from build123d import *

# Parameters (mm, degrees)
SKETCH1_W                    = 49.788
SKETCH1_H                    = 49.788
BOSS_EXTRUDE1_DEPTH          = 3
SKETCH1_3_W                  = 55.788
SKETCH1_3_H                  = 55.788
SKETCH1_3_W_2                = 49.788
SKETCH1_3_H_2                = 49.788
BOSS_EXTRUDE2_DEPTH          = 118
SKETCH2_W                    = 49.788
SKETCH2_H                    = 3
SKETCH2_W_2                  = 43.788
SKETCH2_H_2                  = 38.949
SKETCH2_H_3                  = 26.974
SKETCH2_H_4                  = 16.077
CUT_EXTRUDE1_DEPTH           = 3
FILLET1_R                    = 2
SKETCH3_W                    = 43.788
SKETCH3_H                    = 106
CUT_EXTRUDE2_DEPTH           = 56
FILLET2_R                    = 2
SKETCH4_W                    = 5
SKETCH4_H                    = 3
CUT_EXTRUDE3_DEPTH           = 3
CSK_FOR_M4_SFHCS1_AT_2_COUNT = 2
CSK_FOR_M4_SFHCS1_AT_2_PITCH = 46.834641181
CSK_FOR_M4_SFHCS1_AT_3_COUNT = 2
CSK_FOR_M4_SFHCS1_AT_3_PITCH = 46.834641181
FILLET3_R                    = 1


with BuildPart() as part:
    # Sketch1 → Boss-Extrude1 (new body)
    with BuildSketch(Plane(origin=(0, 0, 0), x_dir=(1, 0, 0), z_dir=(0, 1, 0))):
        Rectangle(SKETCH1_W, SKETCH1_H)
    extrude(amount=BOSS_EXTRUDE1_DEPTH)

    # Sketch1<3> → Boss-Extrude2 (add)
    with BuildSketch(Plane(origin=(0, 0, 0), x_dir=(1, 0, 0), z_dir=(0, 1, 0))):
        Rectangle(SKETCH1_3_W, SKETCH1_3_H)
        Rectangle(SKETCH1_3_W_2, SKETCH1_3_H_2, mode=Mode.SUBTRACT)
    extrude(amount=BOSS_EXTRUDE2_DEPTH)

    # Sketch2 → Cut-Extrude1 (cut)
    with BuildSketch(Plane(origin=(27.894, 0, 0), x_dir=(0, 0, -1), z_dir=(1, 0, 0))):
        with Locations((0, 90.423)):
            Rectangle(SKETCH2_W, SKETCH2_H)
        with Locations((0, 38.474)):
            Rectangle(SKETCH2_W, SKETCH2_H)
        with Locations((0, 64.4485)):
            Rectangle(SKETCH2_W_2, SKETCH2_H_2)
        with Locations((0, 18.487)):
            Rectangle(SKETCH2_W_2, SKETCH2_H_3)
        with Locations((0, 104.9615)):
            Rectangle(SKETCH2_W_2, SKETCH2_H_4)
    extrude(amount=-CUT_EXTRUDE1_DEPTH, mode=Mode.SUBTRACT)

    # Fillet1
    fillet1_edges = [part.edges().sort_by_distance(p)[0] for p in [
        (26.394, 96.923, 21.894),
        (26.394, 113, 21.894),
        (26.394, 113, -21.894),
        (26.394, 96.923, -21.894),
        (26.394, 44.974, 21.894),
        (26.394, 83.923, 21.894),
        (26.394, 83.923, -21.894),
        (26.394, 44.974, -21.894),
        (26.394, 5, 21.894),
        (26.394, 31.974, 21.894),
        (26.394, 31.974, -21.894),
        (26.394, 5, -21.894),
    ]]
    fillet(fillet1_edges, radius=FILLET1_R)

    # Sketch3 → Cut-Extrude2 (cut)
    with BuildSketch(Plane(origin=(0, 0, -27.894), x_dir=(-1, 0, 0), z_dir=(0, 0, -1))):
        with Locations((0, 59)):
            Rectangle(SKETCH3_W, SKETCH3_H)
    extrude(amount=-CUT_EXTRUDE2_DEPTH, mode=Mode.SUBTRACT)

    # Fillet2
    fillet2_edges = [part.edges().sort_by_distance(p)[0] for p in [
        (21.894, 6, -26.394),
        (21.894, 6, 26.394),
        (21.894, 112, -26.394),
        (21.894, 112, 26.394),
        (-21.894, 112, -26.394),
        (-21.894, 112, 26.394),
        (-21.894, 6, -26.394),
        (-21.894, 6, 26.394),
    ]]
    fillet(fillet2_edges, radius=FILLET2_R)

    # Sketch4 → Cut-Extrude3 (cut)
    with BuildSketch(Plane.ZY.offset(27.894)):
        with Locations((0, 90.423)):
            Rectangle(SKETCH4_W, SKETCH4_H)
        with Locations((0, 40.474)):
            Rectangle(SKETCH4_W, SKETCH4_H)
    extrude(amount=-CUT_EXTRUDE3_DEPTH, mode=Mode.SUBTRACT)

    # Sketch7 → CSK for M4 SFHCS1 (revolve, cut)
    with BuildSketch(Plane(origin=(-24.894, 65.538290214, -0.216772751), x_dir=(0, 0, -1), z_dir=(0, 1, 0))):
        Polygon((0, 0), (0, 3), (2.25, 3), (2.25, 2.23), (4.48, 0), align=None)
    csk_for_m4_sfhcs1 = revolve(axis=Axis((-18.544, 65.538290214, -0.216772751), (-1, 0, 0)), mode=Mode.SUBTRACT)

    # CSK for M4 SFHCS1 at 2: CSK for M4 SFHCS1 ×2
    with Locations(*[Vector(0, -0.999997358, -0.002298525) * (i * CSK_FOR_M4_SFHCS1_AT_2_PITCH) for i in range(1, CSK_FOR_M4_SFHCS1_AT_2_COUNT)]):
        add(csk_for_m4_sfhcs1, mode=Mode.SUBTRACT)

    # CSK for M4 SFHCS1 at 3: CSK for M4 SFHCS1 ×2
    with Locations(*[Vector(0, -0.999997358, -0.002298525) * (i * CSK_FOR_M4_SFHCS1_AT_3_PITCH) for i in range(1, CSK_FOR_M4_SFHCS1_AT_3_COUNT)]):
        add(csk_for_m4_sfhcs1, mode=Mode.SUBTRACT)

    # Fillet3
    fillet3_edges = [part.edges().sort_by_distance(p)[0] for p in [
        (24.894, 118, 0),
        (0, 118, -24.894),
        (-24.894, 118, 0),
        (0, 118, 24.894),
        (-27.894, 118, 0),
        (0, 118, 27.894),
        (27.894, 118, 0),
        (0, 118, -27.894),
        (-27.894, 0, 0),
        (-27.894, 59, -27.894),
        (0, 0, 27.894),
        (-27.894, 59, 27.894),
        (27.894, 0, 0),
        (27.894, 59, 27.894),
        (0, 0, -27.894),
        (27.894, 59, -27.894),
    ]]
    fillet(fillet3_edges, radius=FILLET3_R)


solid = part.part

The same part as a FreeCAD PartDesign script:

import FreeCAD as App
import Part
import Sketcher
Q = App.Units.Quantity


def edges_at(feature, points):
    """Names of the edges that pass closest to the given points."""
    edges = feature.Shape.Edges
    near = lambda p: min(range(len(edges)), key=lambda i: edges[i].distToShape(Part.Vertex(*p))[0])
    return sorted({f"Edge{near(p) + 1}" for p in points})

doc = App.newDocument("Part")
body = doc.addObject("PartDesign::Body", "Body")

sketch1 = body.newObject("Sketcher::SketchObject", "Sketch")
sketch1.AttachmentSupport = (doc.getObject("XZ_Plane"), [""])
sketch1.MapMode = "FlatFace"
sketch1.addGeometry(Part.LineSegment(App.Vector(-24.894, -24.894, 0), App.Vector(-24.894, 24.894, 0)), False)
sketch1.addGeometry(Part.LineSegment(App.Vector(-24.894, 24.894, 0), App.Vector(24.894, 24.894, 0)), False)
sketch1.addGeometry(Part.LineSegment(App.Vector(24.894, 24.894, 0), App.Vector(24.894, -24.894, 0)), False)
sketch1.addGeometry(Part.LineSegment(App.Vector(24.894, -24.894, 0), App.Vector(-24.894, -24.894, 0)), False)
sketch1.addConstraint(Sketcher.Constraint("Coincident", 0, 2, 1, 1))
sketch1.addConstraint(Sketcher.Constraint("Coincident", 1, 2, 2, 1))
sketch1.addConstraint(Sketcher.Constraint("Coincident", 2, 2, 3, 1))
sketch1.addConstraint(Sketcher.Constraint("Coincident", 3, 2, 0, 1))
sketch1.addConstraint(Sketcher.Constraint("Vertical", 0))
sketch1.addConstraint(Sketcher.Constraint("Horizontal", 1))
sketch1.addConstraint(Sketcher.Constraint("Vertical", 2))
sketch1.addConstraint(Sketcher.Constraint("Horizontal", 3))
sketch1.addConstraint(Sketcher.Constraint("Symmetric", 0, 2, 2, 2, -1, 1))
sketch1.addConstraint(Sketcher.Constraint("Equal", 3, 0))
sketch1.addConstraint(Sketcher.Constraint("DistanceX", 1, 1, 1, 2, 49.788))
pad1 = body.newObject("PartDesign::Pad", "Pad")
pad1.Profile = sketch1
pad1.Length = 3
pad1.Reversed = True

sketch2 = body.newObject("Sketcher::SketchObject", "Sketch001")
sketch2.AttachmentSupport = (doc.getObject("XZ_Plane"), [""])
sketch2.MapMode = "FlatFace"
sketch2.addGeometry(Part.LineSegment(App.Vector(-27.894, -27.894, 0), App.Vector(-27.894, 27.894, 0)), False)
sketch2.addGeometry(Part.LineSegment(App.Vector(-27.894, 27.894, 0), App.Vector(27.894, 27.894, 0)), False)
sketch2.addGeometry(Part.LineSegment(App.Vector(27.894, 27.894, 0), App.Vector(27.894, -27.894, 0)), False)
sketch2.addGeometry(Part.LineSegment(App.Vector(27.894, -27.894, 0), App.Vector(-27.894, -27.894, 0)), False)
sketch2.addGeometry(Part.LineSegment(App.Vector(24.894, 24.894, 0), App.Vector(-24.894, 24.894, 0)), False)
sketch2.addGeometry(Part.LineSegment(App.Vector(-24.894, 24.894, 0), App.Vector(-24.894, -24.894, 0)), False)
sketch2.addGeometry(Part.LineSegment(App.Vector(-24.894, -24.894, 0), App.Vector(24.894, -24.894, 0)), False)
sketch2.addGeometry(Part.LineSegment(App.Vector(24.894, -24.894, 0), App.Vector(24.894, 24.894, 0)), False)
sketch2.addConstraint(Sketcher.Constraint("Coincident", 0, 2, 1, 1))
sketch2.addConstraint(Sketcher.Constraint("Coincident", 1, 2, 2, 1))
sketch2.addConstraint(Sketcher.Constraint("Coincident", 2, 2, 3, 1))
sketch2.addConstraint(Sketcher.Constraint("Coincident", 3, 2, 0, 1))
sketch2.addConstraint(Sketcher.Constraint("Coincident", 4, 2, 5, 1))
sketch2.addConstraint(Sketcher.Constraint("Coincident", 5, 2, 6, 1))
sketch2.addConstraint(Sketcher.Constraint("Coincident", 6, 2, 7, 1))
sketch2.addConstraint(Sketcher.Constraint("Coincident", 7, 2, 4, 1))
sketch2.addConstraint(Sketcher.Constraint("Vertical", 0))
sketch2.addConstraint(Sketcher.Constraint("Horizontal", 1))
sketch2.addConstraint(Sketcher.Constraint("Vertical", 2))
sketch2.addConstraint(Sketcher.Constraint("Horizontal", 3))
sketch2.addConstraint(Sketcher.Constraint("Horizontal", 4))
sketch2.addConstraint(Sketcher.Constraint("Vertical", 5))
sketch2.addConstraint(Sketcher.Constraint("Horizontal", 6))
sketch2.addConstraint(Sketcher.Constraint("Vertical", 7))
sketch2.addConstraint(Sketcher.Constraint("Symmetric", 0, 2, 2, 2, -1, 1))
sketch2.addConstraint(Sketcher.Constraint("Symmetric", 4, 2, 6, 2, -1, 1))
sketch2.addConstraint(Sketcher.Constraint("Equal", 3, 0))
sketch2.addConstraint(Sketcher.Constraint("Equal", 6, 5))
sketch2.addConstraint(Sketcher.Constraint("DistanceX", 0, 2, 4, 2, 3.0))
sketch2.addConstraint(Sketcher.Constraint("DistanceX", 1, 1, 1, 2, 55.788))
pad2 = body.newObject("PartDesign::Pad", "Pad001")
pad2.Profile = sketch2
pad2.Length = 118
pad2.Reversed = True

sketch3 = body.newObject("Sketcher::SketchObject", "Sketch002")
sketch3.AttachmentSupport = (doc.getObject("YZ_Plane"), [""])
sketch3.MapMode = "FlatFace"
sketch3.AttachmentOffset = App.Placement(App.Vector(0, 0, 27.894), App.Rotation())
sketch3.addGeometry(Part.LineSegment(App.Vector(91.923, 24.894, 0), App.Vector(88.923, 24.894, 0)), False)
sketch3.addGeometry(Part.LineSegment(App.Vector(88.923, 24.894, 0), App.Vector(88.923, -24.894, 0)), False)
sketch3.addGeometry(Part.LineSegment(App.Vector(88.923, -24.894, 0), App.Vector(91.923, -24.894, 0)), False)
sketch3.addGeometry(Part.LineSegment(App.Vector(91.923, -24.894, 0), App.Vector(91.923, 24.894, 0)), False)
sketch3.addGeometry(Part.LineSegment(App.Vector(39.974, 24.894, 0), App.Vector(36.974, 24.894, 0)), False)
sketch3.addGeometry(Part.LineSegment(App.Vector(36.974, 24.894, 0), App.Vector(36.974, -24.894, 0)), False)
sketch3.addGeometry(Part.LineSegment(App.Vector(36.974, -24.894, 0), App.Vector(39.974, -24.894, 0)), False)
sketch3.addGeometry(Part.LineSegment(App.Vector(39.974, -24.894, 0), App.Vector(39.974, 24.894, 0)), False)
sketch3.addGeometry(Part.LineSegment(App.Vector(83.923, 21.894, 0), App.Vector(44.974, 21.894, 0)), False)
sketch3.addGeometry(Part.LineSegment(App.Vector(44.974, 21.894, 0), App.Vector(44.974, -21.894, 0)), False)
sketch3.addGeometry(Part.LineSegment(App.Vector(44.974, -21.894, 0), App.Vector(83.923, -21.894, 0)), False)
sketch3.addGeometry(Part.LineSegment(App.Vector(83.923, -21.894, 0), App.Vector(83.923, 21.894, 0)), False)
sketch3.addGeometry(Part.LineSegment(App.Vector(31.974, 21.894, 0), App.Vector(5, 21.894, 0)), False)
sketch3.addGeometry(Part.LineSegment(App.Vector(5, 21.894, 0), App.Vector(5, -21.894, 0)), False)
sketch3.addGeometry(Part.LineSegment(App.Vector(5, -21.894, 0), App.Vector(31.974, -21.894, 0)), False)
sketch3.addGeometry(Part.LineSegment(App.Vector(31.974, -21.894, 0), App.Vector(31.974, 21.894, 0)), False)
sketch3.addGeometry(Part.LineSegment(App.Vector(113, 21.894, 0), App.Vector(96.923, 21.894, 0)), False)
sketch3.addGeometry(Part.LineSegment(App.Vector(96.923, 21.894, 0), App.Vector(96.923, -21.894, 0)), False)
sketch3.addGeometry(Part.LineSegment(App.Vector(96.923, -21.894, 0), App.Vector(113, -21.894, 0)), False)
sketch3.addGeometry(Part.LineSegment(App.Vector(113, -21.894, 0), App.Vector(113, 21.894, 0)), False)
sketch3.addConstraint(Sketcher.Constraint("Coincident", 0, 2, 1, 1))
sketch3.addConstraint(Sketcher.Constraint("Coincident", 1, 2, 2, 1))
sketch3.addConstraint(Sketcher.Constraint("Coincident", 2, 2, 3, 1))
sketch3.addConstraint(Sketcher.Constraint("Coincident", 3, 2, 0, 1))
sketch3.addConstraint(Sketcher.Constraint("Coincident", 4, 2, 5, 1))
sketch3.addConstraint(Sketcher.Constraint("Coincident", 5, 2, 6, 1))
sketch3.addConstraint(Sketcher.Constraint("Coincident", 6, 2, 7, 1))
sketch3.addConstraint(Sketcher.Constraint("Coincident", 7, 2, 4, 1))
sketch3.addConstraint(Sketcher.Constraint("Coincident", 8, 2, 9, 1))
sketch3.addConstraint(Sketcher.Constraint("Coincident", 9, 2, 10, 1))
sketch3.addConstraint(Sketcher.Constraint("Coincident", 10, 2, 11, 1))
sketch3.addConstraint(Sketcher.Constraint("Coincident", 11, 2, 8, 1))
sketch3.addConstraint(Sketcher.Constraint("Coincident", 12, 2, 13, 1))
sketch3.addConstraint(Sketcher.Constraint("Coincident", 13, 2, 14, 1))
sketch3.addConstraint(Sketcher.Constraint("Coincident", 14, 2, 15, 1))
sketch3.addConstraint(Sketcher.Constraint("Coincident", 15, 2, 12, 1))
sketch3.addConstraint(Sketcher.Constraint("Coincident", 16, 2, 17, 1))
sketch3.addConstraint(Sketcher.Constraint("Coincident", 17, 2, 18, 1))
sketch3.addConstraint(Sketcher.Constraint("Coincident", 18, 2, 19, 1))
sketch3.addConstraint(Sketcher.Constraint("Coincident", 19, 2, 16, 1))
sketch3.addConstraint(Sketcher.Constraint("Horizontal", 0))
sketch3.addConstraint(Sketcher.Constraint("Vertical", 1))
sketch3.addConstraint(Sketcher.Constraint("Horizontal", 2))
sketch3.addConstraint(Sketcher.Constraint("Vertical", 3))
sketch3.addConstraint(Sketcher.Constraint("Horizontal", 4))
sketch3.addConstraint(Sketcher.Constraint("Vertical", 5))
sketch3.addConstraint(Sketcher.Constraint("Horizontal", 6))
sketch3.addConstraint(Sketcher.Constraint("Vertical", 7))
sketch3.addConstraint(Sketcher.Constraint("Horizontal", 8))
sketch3.addConstraint(Sketcher.Constraint("Vertical", 9))
sketch3.addConstraint(Sketcher.Constraint("Horizontal", 10))
sketch3.addConstraint(Sketcher.Constraint("Vertical", 11))
sketch3.addConstraint(Sketcher.Constraint("Horizontal", 12))
sketch3.addConstraint(Sketcher.Constraint("Vertical", 13))
sketch3.addConstraint(Sketcher.Constraint("Horizontal", 14))
sketch3.addConstraint(Sketcher.Constraint("Vertical", 15))
sketch3.addConstraint(Sketcher.Constraint("Horizontal", 16))
sketch3.addConstraint(Sketcher.Constraint("Vertical", 17))
sketch3.addConstraint(Sketcher.Constraint("Horizontal", 18))
sketch3.addConstraint(Sketcher.Constraint("Vertical", 19))
sketch3.addConstraint(Sketcher.Constraint("Horizontal", 3, 2, 4, 2))
sketch3.addConstraint(Sketcher.Constraint("Horizontal", 2, 2, 5, 2))
sketch3.addConstraint(Sketcher.Constraint("Horizontal", 11, 2, 12, 2))
sketch3.addConstraint(Sketcher.Constraint("Horizontal", 10, 2, 13, 2))
sketch3.addConstraint(Sketcher.Constraint("Horizontal", 15, 2, 16, 2))
sketch3.addConstraint(Sketcher.Constraint("Horizontal", 14, 2, 17, 2))
sketch3.addConstraint(Sketcher.Constraint("Equal", 2, 4))
sketch3.addConstraint(Sketcher.Constraint("DistanceX", 0, 2, 0, 1, 3.0))
sketch3.addConstraint(Sketcher.Constraint("DistanceX", -1, 1, 12, 2, 5.0))
sketch3.addConstraint(Sketcher.Constraint("DistanceX", -1, 1, 18, 2, 113.0))
sketch3.addConstraint(Sketcher.Constraint("DistanceX", 7, 2, 8, 2, 5.0))
sketch3.addConstraint(Sketcher.Constraint("DistanceY", 8, 2, 7, 2, 3.0))
sketch3.addConstraint(Sketcher.Constraint("DistanceY", 6, 2, 9, 2, 3.0))
sketch3.addConstraint(Sketcher.Constraint("DistanceX", 10, 2, 1, 2, 5.0))
sketch3.addConstraint(Sketcher.Constraint("DistanceX", 14, 2, 5, 2, 5.0))
sketch3.addConstraint(Sketcher.Constraint("DistanceX", 3, 2, 16, 2, 5.0))
sketch3.addConstraint(Sketcher.Constraint("DistanceX", 8, 2, 8, 1, 38.949))
sketch3.addConstraint(Sketcher.Constraint("DistanceX", 12, 2, 12, 1, 26.974))
sketch3.addConstraint(Sketcher.Constraint("DistanceY", 1, 2, 1, 1, 49.788))
sketch3.addConstraint(Sketcher.Constraint("DistanceY", -1, 1, 0, 2, 24.894))
pocket1 = body.newObject("PartDesign::Pocket", "Pocket")
pocket1.Profile = sketch3
pocket1.Length = 3
doc.recompute()

fillet = body.newObject("PartDesign::Fillet", "Fillet")
fillet.Base = (pocket1, edges_at(pocket1, [
    (26.394, 96.923, 21.894),
    (26.394, 113, 21.894),
    (26.394, 113, -21.894),
    (26.394, 96.923, -21.894),
    (26.394, 44.974, 21.894),
    (26.394, 83.923, 21.894),
    (26.394, 83.923, -21.894),
    (26.394, 44.974, -21.894),
    (26.394, 5, 21.894),
    (26.394, 31.974, 21.894),
    (26.394, 31.974, -21.894),
    (26.394, 5, -21.894),
]))
fillet.Radius = 2

sketch4 = body.newObject("Sketcher::SketchObject", "Sketch003")
sketch4.AttachmentSupport = (doc.getObject("XY_Plane"), [""])
sketch4.MapMode = "FlatFace"
sketch4.AttachmentOffset = App.Placement(App.Vector(0, 0, -27.894), App.Rotation())
sketch4.addGeometry(Part.LineSegment(App.Vector(21.894, 112, 0), App.Vector(21.894, 6, 0)), False)
sketch4.addGeometry(Part.LineSegment(App.Vector(21.894, 6, 0), App.Vector(-21.894, 6, 0)), False)
sketch4.addGeometry(Part.LineSegment(App.Vector(-21.894, 6, 0), App.Vector(-21.894, 112, 0)), False)
sketch4.addGeometry(Part.LineSegment(App.Vector(-21.894, 112, 0), App.Vector(21.894, 112, 0)), False)
sketch4.addConstraint(Sketcher.Constraint("Coincident", 0, 2, 1, 1))
sketch4.addConstraint(Sketcher.Constraint("Coincident", 1, 2, 2, 1))
sketch4.addConstraint(Sketcher.Constraint("Coincident", 2, 2, 3, 1))
sketch4.addConstraint(Sketcher.Constraint("Coincident", 3, 2, 0, 1))
sketch4.addConstraint(Sketcher.Constraint("Vertical", 0))
sketch4.addConstraint(Sketcher.Constraint("Horizontal", 1))
sketch4.addConstraint(Sketcher.Constraint("Vertical", 2))
sketch4.addConstraint(Sketcher.Constraint("Horizontal", 3))
sketch4.addConstraint(Sketcher.Constraint("DistanceY", 0, 2, 0, 1, 106.0))
sketch4.addConstraint(Sketcher.Constraint("DistanceY", -1, 1, 0, 2, 6.0))
sketch4.addConstraint(Sketcher.Constraint("DistanceX", 1, 2, 1, 1, 43.788))
sketch4.addConstraint(Sketcher.Constraint("DistanceX", -1, 1, 0, 2, 21.894))
pocket2 = body.newObject("PartDesign::Pocket", "Pocket001")
pocket2.Profile = sketch4
pocket2.Length = 56
pocket2.Reversed = True
doc.recompute()

fillet2 = body.newObject("PartDesign::Fillet", "Fillet001")
fillet2.Base = (pocket2, edges_at(pocket2, [
    (21.894, 6, -26.394),
    (21.894, 6, 26.394),
    (21.894, 112, -26.394),
    (21.894, 112, 26.394),
    (-21.894, 112, -26.394),
    (-21.894, 112, 26.394),
    (-21.894, 6, -26.394),
    (-21.894, 6, 26.394),
]))
fillet2.Radius = 2

sketch5 = body.newObject("Sketcher::SketchObject", "Sketch004")
sketch5.AttachmentSupport = (doc.getObject("YZ_Plane"), [""])
sketch5.MapMode = "FlatFace"
sketch5.AttachmentOffset = App.Placement(App.Vector(0, 0, -27.894), App.Rotation())
sketch5.addGeometry(Part.LineSegment(App.Vector(91.923, -2.5, 0), App.Vector(88.923, -2.5, 0)), False)
sketch5.addGeometry(Part.LineSegment(App.Vector(88.923, -2.5, 0), App.Vector(88.923, 2.5, 0)), False)
sketch5.addGeometry(Part.LineSegment(App.Vector(88.923, 2.5, 0), App.Vector(91.923, 2.5, 0)), False)
sketch5.addGeometry(Part.LineSegment(App.Vector(91.923, 2.5, 0), App.Vector(91.923, -2.5, 0)), False)
sketch5.addGeometry(Part.LineSegment(App.Vector(41.974, -2.5, 0), App.Vector(38.974, -2.5, 0)), False)
sketch5.addGeometry(Part.LineSegment(App.Vector(38.974, -2.5, 0), App.Vector(38.974, 2.5, 0)), False)
sketch5.addGeometry(Part.LineSegment(App.Vector(38.974, 2.5, 0), App.Vector(41.974, 2.5, 0)), False)
sketch5.addGeometry(Part.LineSegment(App.Vector(41.974, 2.5, 0), App.Vector(41.974, -2.5, 0)), False)
sketch5.addConstraint(Sketcher.Constraint("Coincident", 0, 2, 1, 1))
sketch5.addConstraint(Sketcher.Constraint("Coincident", 1, 2, 2, 1))
sketch5.addConstraint(Sketcher.Constraint("Coincident", 2, 2, 3, 1))
sketch5.addConstraint(Sketcher.Constraint("Coincident", 3, 2, 0, 1))
sketch5.addConstraint(Sketcher.Constraint("Coincident", 4, 2, 5, 1))
sketch5.addConstraint(Sketcher.Constraint("Coincident", 5, 2, 6, 1))
sketch5.addConstraint(Sketcher.Constraint("Coincident", 6, 2, 7, 1))
sketch5.addConstraint(Sketcher.Constraint("Coincident", 7, 2, 4, 1))
sketch5.addConstraint(Sketcher.Constraint("Horizontal", 0))
sketch5.addConstraint(Sketcher.Constraint("Vertical", 1))
sketch5.addConstraint(Sketcher.Constraint("Horizontal", 2))
sketch5.addConstraint(Sketcher.Constraint("Vertical", 3))
sketch5.addConstraint(Sketcher.Constraint("Horizontal", 4))
sketch5.addConstraint(Sketcher.Constraint("Vertical", 5))
sketch5.addConstraint(Sketcher.Constraint("Horizontal", 6))
sketch5.addConstraint(Sketcher.Constraint("Vertical", 7))
sketch5.addConstraint(Sketcher.Constraint("Horizontal", 3, 2, 4, 2))
sketch5.addConstraint(Sketcher.Constraint("Horizontal", 2, 2, 5, 2))
sketch5.addConstraint(Sketcher.Constraint("Equal", 2, 4))
sketch5.addConstraint(Sketcher.Constraint("DistanceX", 0, 2, 0, 1, 3.0))
sketch5.addConstraint(Sketcher.Constraint("DistanceY", 1, 1, 1, 2, 5.0))
sketch5.addConstraint(Sketcher.Constraint("DistanceY", 0, 2, -1, 1, 2.5))
sketch5.addConstraint(Sketcher.Constraint("DistanceX", -1, 1, 0, 2, 88.923))
sketch5.addConstraint(Sketcher.Constraint("DistanceX", -1, 1, 4, 2, 38.974))
pocket3 = body.newObject("PartDesign::Pocket", "Pocket002")
pocket3.Profile = sketch5
pocket3.Length = 3
pocket3.Reversed = True

sketch6 = body.newObject("Sketcher::SketchObject", "Sketch005")
sketch6.AttachmentSupport = (doc.getObject("XZ_Plane"), [""])
sketch6.MapMode = "FlatFace"
sketch6.AttachmentOffset = App.Placement(App.Vector(0, 0, -65.53829), App.Rotation())
sketch6.addGeometry(Part.LineSegment(App.Vector(-27.894, -0.216773, 0), App.Vector(-24.894, -0.216773, 0)), False)
sketch6.addGeometry(Part.LineSegment(App.Vector(-24.894, -0.216773, 0), App.Vector(-24.894, -4.696773, 0)), False)
sketch6.addGeometry(Part.LineSegment(App.Vector(-24.894, -4.696773, 0), App.Vector(-27.124, -2.466773, 0)), False)
sketch6.addGeometry(Part.LineSegment(App.Vector(-27.124, -2.466773, 0), App.Vector(-27.894, -2.466773, 0)), False)
sketch6.addGeometry(Part.LineSegment(App.Vector(-27.894, -2.466773, 0), App.Vector(-27.894, -0.216773, 0)), False)
sketch6.addGeometry(Part.LineSegment(App.Vector(-24.894, -0.216773, 0), App.Vector(-27.894, -0.216773, 0)), True)
sketch6.addConstraint(Sketcher.Constraint("Coincident", 0, 2, 1, 1))
sketch6.addConstraint(Sketcher.Constraint("Coincident", 1, 2, 2, 1))
sketch6.addConstraint(Sketcher.Constraint("Coincident", 2, 2, 3, 1))
sketch6.addConstraint(Sketcher.Constraint("Coincident", 3, 2, 4, 1))
sketch6.addConstraint(Sketcher.Constraint("Coincident", 4, 2, 0, 1))
sketch6.addConstraint(Sketcher.Constraint("Horizontal", 0))
sketch6.addConstraint(Sketcher.Constraint("Vertical", 1))
sketch6.addConstraint(Sketcher.Constraint("Horizontal", 3))
sketch6.addConstraint(Sketcher.Constraint("Vertical", 4))
sketch6.addConstraint(Sketcher.Constraint("Horizontal", 5))
sketch6.addConstraint(Sketcher.Constraint("Coincident", 5, 1, 0, 2))
sketch6.addConstraint(Sketcher.Constraint("Vertical", 3, 2, 5, 2))
sketch6.addConstraint(Sketcher.Constraint("DistanceX", 0, 1, 0, 2, 3.0))
sketch6.addConstraint(Sketcher.Constraint("Angle", 2, Q("135 deg")))
sketch6.addConstraint(Sketcher.Constraint("DistanceX", 3, 2, 3, 1, 0.77))
sketch6.addConstraint(Sketcher.Constraint("DistanceY", 1, 2, 1, 1, 4.48))
sketch6.addConstraint(Sketcher.Constraint("DistanceX", 0, 2, -1, 1, 24.894))
sketch6.addConstraint(Sketcher.Constraint("DistanceY", 0, 2, -1, 1, 0.216773))
groove = body.newObject("PartDesign::Groove", "Groove")
groove.Profile = sketch6
groove.ReferenceAxis = (sketch6, ["Axis0"])
groove.Angle = 360
doc.recompute()

datumline = body.newObject("PartDesign::Line", "DatumLine")
datumline.Placement = App.Placement(App.Vector(0, 0, 0), App.Rotation(App.Vector(0, 0, 1), App.Vector(0, -0.999997358, -0.002298525)))
linearpattern = body.newObject("PartDesign::LinearPattern", "LinearPattern")
linearpattern.Originals = [groove]
linearpattern.Direction = (datumline, [""])
linearpattern.Mode = "offset"
linearpattern.Offset = 46.834641
linearpattern.Occurrences = 2
body.Tip = linearpattern
doc.recompute()

datumline2 = body.newObject("PartDesign::Line", "DatumLine001")
datumline2.Placement = App.Placement(App.Vector(0, 0, 0), App.Rotation(App.Vector(0, 0, 1), App.Vector(0, -0.999997358, -0.002298525)))
linearpattern2 = body.newObject("PartDesign::LinearPattern", "LinearPattern001")
linearpattern2.Originals = [groove]
linearpattern2.Direction = (datumline2, [""])
linearpattern2.Mode = "offset"
linearpattern2.Offset = 46.834641
linearpattern2.Occurrences = 2
body.Tip = linearpattern2
doc.recompute()

fillet3 = body.newObject("PartDesign::Fillet", "Fillet002")
fillet3.Base = (linearpattern2, edges_at(linearpattern2, [
    (24.894, 118, 0),
    (0, 118, -24.894),
    (-24.894, 118, 0),
    (0, 118, 24.894),
    (-27.894, 118, 0),
    (0, 118, 27.894),
    (27.894, 118, 0),
    (0, 118, -27.894),
    (-27.894, 0, 0),
    (-27.894, 59, -27.894),
    (0, 0, 27.894),
    (-27.894, 59, 27.894),
    (27.894, 0, 0),
    (27.894, 59, 27.894),
    (0, 0, -27.894),
    (27.894, 59, -27.894),
]))
fillet3.Radius = 1

doc.recompute()
